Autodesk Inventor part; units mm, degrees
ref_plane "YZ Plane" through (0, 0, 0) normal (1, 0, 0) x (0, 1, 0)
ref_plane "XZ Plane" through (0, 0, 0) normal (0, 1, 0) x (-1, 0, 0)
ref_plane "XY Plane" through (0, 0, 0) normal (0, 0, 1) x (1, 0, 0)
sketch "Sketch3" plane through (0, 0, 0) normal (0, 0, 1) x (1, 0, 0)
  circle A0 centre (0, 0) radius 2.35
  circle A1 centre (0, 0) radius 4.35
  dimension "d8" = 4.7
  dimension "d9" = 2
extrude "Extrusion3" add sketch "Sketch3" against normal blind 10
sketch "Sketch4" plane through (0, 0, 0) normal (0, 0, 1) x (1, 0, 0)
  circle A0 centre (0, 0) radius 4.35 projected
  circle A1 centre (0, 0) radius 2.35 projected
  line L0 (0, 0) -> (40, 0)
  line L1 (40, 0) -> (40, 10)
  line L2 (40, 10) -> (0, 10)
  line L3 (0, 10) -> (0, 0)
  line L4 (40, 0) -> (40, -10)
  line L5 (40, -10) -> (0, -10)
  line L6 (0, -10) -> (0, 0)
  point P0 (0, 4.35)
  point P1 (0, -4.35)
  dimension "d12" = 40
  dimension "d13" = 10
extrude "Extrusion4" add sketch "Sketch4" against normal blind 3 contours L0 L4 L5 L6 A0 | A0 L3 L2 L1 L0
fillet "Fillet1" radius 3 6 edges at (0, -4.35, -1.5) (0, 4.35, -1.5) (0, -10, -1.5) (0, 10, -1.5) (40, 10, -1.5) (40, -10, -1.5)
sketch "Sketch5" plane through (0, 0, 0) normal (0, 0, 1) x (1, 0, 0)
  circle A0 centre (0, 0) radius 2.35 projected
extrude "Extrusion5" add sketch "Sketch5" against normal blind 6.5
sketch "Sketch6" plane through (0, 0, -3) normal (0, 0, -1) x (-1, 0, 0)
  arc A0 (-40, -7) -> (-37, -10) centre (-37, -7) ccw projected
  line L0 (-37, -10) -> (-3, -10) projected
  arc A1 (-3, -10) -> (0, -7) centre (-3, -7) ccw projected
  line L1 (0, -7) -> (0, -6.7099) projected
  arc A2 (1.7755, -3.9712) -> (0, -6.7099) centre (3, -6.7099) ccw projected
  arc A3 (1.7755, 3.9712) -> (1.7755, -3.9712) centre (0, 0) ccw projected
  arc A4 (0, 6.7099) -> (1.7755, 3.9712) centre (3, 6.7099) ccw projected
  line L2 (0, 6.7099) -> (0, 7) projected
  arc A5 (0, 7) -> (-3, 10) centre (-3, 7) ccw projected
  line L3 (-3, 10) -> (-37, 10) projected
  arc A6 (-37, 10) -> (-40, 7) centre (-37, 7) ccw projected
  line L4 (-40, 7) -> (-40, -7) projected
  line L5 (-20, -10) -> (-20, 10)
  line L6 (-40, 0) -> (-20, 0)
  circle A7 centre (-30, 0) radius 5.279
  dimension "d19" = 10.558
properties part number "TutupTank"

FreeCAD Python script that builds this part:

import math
import FreeCAD as App
import Part
import Sketcher
from FreeCAD import Vector
Q = App.Units.Quantity


def edges_at(feature, points):
    """Names of the edges that pass closest to the given points."""
    edges = feature.Shape.Edges
    near = lambda p: min(range(len(edges)), key=lambda i: edges[i].distToShape(Part.Vertex(*p))[0])
    return sorted({f"Edge{near(p) + 1}" for p in points})

doc = App.newDocument("Part")
body = doc.addObject("PartDesign::Body", "Body")

# Sketch on XY plane
sketch1 = doc.addObject("Sketcher::SketchObject", "Sketch")
body.addObject(sketch1)
sketch1.AttachmentSupport = (doc.XY_Plane, [""])
sketch1.MapMode = "FlatFace"
sketch1.addGeometry([
    Part.Circle(Vector(0, 0, 0), Vector(0, 0, 1), 4.3),
    Part.Circle(Vector(0, 0, 0), Vector(0, 0, 1), 2.4),
], False)
sketch1.addConstraint([
    Sketcher.Constraint("Coincident", 0, 3, -1, 1),
    Sketcher.Constraint("Coincident", 1, 3, -1, 1),
    Sketcher.Constraint("Diameter", 1, Q("4.7 mm")),
    Sketcher.Constraint("Diameter", 0, Q("8.7 mm")),
])
pad1 = doc.addObject("PartDesign::Pad", "Pad")
body.addObject(pad1)
pad1.Profile = sketch1
pad1.Length = 10
pad1.Reversed = True

# Sketch on XY plane
sketch2 = doc.addObject("Sketcher::SketchObject", "Sketch001")
body.addObject(sketch2)
sketch2.AttachmentSupport = (doc.XY_Plane, [""])
sketch2.MapMode = "FlatFace"
sketch2.addGeometry([
    Part.LineSegment(Vector(40, -10, 0), Vector(40, 10, 0)),  # 0
    Part.LineSegment(Vector(40, 10, 0), Vector(0, 10, 0)),  # 1
    Part.LineSegment(Vector(0, 10, 0), Vector(0, 4.3, 0)),  # 2
    Part.ArcOfCircle(Part.Circle(Vector(0, 0, 0), Vector(0, 0, 1), 4.3), math.radians(-90), math.radians(90)),  # 3
    Part.LineSegment(Vector(0, -4.3, 0), Vector(0, -10, 0)),  # 4
    Part.LineSegment(Vector(0, -10, 0), Vector(40, -10, 0)),  # 5
], False)
sketch2.addConstraint([
    Sketcher.Constraint("Coincident", 0, 2, 1, 1),
    Sketcher.Constraint("Coincident", 1, 2, 2, 1),
    Sketcher.Constraint("Coincident", 2, 2, 3, 2),
    Sketcher.Constraint("Coincident", 3, 1, 4, 1),
    Sketcher.Constraint("Coincident", 4, 2, 5, 1),
    Sketcher.Constraint("Coincident", 5, 2, 0, 1),
    Sketcher.Constraint("Vertical", 0),
    Sketcher.Constraint("Horizontal", 1),
    Sketcher.Constraint("Vertical", 2),
    Sketcher.Constraint("Vertical", 4),
    Sketcher.Constraint("Horizontal", 5),
    Sketcher.Constraint("Coincident", 3, 3, -1, 1),
    Sketcher.Constraint("Symmetric", 1, 2, 4, 2, -1, 1),
    Sketcher.Constraint("PointOnObject", 1, 2, -2),
    Sketcher.Constraint("DistanceX", 1, 2, 1, 1, Q("40 mm")),
    Sketcher.Constraint("DistanceY", -1, 1, 0, 2, Q("10 mm")),
    Sketcher.Constraint("Radius", 3, Q("4.35 mm")),
])
pad2 = doc.addObject("PartDesign::Pad", "Pad001")
body.addObject(pad2)
pad2.Profile = sketch2
pad2.Length = 3
pad2.Reversed = True
doc.recompute()

fillet = doc.addObject("PartDesign::Fillet", "Fillet")
body.addObject(fillet)
fillet.Base = (pad2, edges_at(pad2, [
    (0, -4.35, -1.5),
    (0, 4.35, -1.5),
    (0, -10, -1.5),
    (0, 10, -1.5),
    (40, 10, -1.5),
    (40, -10, -1.5),
]))
fillet.Radius = 3

# Sketch on XY plane
sketch3 = doc.addObject("Sketcher::SketchObject", "Sketch002")
body.addObject(sketch3)
sketch3.AttachmentSupport = (doc.XY_Plane, [""])
sketch3.MapMode = "FlatFace"
sketch3.addGeometry(Part.Circle(Vector(0, 0, 0), Vector(0, 0, 1), 2.4), False)
sketch3.addConstraint([
    Sketcher.Constraint("Coincident", 0, 3, -1, 1),
    Sketcher.Constraint("Diameter", 0, Q("4.7 mm")),
])
pad3 = doc.addObject("PartDesign::Pad", "Pad002")
body.addObject(pad3)
pad3.Profile = sketch3
pad3.Length = 6.5
pad3.Reversed = True

doc.recompute()
